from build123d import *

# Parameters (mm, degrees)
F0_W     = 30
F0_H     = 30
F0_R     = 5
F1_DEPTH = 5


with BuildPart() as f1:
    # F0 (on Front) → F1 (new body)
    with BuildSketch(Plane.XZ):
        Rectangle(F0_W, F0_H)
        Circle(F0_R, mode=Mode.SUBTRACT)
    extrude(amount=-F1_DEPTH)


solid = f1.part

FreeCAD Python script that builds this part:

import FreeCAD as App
import Part
import Sketcher
from FreeCAD import Vector
Q = App.Units.Quantity


def add_polygon(sketch, points):
    """Adds a closed chain of lines whose ends are joined by coincident constraints."""
    first, n = sketch.GeometryCount, len(points)
    for a, b in zip(points, points[1:] + points[:1]):
        sketch.addGeometry(Part.LineSegment(App.Vector(*a, 0), App.Vector(*b, 0)), False)
    for i in range(n):
        sketch.addConstraint(Sketcher.Constraint("Coincident", first + i, 2, first + (i + 1) % n, 1))

doc = App.newDocument("Part")
body = doc.addObject("PartDesign::Body", "Body")

# Sketch on XZ plane
sketch1 = body.newObject("Sketcher::SketchObject", "Sketch")
sketch1.AttachmentSupport = (doc.getObject("XZ_Plane"), [""])
sketch1.MapMode = "FlatFace"
add_polygon(sketch1, [(-15, 15), (-15, -15), (15, -15), (15, 15)])  # lines 0-3
sketch1.addGeometry(Part.Circle(Vector(0, 0, 0), Vector(0, 0, 1), 5), False)  # 4
sketch1.addConstraint(Sketcher.Constraint("Vertical", 0))
sketch1.addConstraint(Sketcher.Constraint("Horizontal", 1))
sketch1.addConstraint(Sketcher.Constraint("Vertical", 2))
sketch1.addConstraint(Sketcher.Constraint("Horizontal", 3))
sketch1.addConstraint(Sketcher.Constraint("Coincident", 4, 3, -1, 1))
sketch1.addConstraint(Sketcher.Constraint("Symmetric", 0, 2, 2, 2, -1, 1))
sketch1.addConstraint(Sketcher.Constraint("Equal", 3, 0))
sketch1.addConstraint(Sketcher.Constraint("Diameter", 4, Q("10 mm")))
sketch1.addConstraint(Sketcher.Constraint("DistanceX", 1, 1, 1, 2, Q("30 mm")))
pad1 = body.newObject("PartDesign::Pad", "Pad")
pad1.Profile = sketch1
pad1.Length = 5
pad1.Reversed = True

doc.recompute()
